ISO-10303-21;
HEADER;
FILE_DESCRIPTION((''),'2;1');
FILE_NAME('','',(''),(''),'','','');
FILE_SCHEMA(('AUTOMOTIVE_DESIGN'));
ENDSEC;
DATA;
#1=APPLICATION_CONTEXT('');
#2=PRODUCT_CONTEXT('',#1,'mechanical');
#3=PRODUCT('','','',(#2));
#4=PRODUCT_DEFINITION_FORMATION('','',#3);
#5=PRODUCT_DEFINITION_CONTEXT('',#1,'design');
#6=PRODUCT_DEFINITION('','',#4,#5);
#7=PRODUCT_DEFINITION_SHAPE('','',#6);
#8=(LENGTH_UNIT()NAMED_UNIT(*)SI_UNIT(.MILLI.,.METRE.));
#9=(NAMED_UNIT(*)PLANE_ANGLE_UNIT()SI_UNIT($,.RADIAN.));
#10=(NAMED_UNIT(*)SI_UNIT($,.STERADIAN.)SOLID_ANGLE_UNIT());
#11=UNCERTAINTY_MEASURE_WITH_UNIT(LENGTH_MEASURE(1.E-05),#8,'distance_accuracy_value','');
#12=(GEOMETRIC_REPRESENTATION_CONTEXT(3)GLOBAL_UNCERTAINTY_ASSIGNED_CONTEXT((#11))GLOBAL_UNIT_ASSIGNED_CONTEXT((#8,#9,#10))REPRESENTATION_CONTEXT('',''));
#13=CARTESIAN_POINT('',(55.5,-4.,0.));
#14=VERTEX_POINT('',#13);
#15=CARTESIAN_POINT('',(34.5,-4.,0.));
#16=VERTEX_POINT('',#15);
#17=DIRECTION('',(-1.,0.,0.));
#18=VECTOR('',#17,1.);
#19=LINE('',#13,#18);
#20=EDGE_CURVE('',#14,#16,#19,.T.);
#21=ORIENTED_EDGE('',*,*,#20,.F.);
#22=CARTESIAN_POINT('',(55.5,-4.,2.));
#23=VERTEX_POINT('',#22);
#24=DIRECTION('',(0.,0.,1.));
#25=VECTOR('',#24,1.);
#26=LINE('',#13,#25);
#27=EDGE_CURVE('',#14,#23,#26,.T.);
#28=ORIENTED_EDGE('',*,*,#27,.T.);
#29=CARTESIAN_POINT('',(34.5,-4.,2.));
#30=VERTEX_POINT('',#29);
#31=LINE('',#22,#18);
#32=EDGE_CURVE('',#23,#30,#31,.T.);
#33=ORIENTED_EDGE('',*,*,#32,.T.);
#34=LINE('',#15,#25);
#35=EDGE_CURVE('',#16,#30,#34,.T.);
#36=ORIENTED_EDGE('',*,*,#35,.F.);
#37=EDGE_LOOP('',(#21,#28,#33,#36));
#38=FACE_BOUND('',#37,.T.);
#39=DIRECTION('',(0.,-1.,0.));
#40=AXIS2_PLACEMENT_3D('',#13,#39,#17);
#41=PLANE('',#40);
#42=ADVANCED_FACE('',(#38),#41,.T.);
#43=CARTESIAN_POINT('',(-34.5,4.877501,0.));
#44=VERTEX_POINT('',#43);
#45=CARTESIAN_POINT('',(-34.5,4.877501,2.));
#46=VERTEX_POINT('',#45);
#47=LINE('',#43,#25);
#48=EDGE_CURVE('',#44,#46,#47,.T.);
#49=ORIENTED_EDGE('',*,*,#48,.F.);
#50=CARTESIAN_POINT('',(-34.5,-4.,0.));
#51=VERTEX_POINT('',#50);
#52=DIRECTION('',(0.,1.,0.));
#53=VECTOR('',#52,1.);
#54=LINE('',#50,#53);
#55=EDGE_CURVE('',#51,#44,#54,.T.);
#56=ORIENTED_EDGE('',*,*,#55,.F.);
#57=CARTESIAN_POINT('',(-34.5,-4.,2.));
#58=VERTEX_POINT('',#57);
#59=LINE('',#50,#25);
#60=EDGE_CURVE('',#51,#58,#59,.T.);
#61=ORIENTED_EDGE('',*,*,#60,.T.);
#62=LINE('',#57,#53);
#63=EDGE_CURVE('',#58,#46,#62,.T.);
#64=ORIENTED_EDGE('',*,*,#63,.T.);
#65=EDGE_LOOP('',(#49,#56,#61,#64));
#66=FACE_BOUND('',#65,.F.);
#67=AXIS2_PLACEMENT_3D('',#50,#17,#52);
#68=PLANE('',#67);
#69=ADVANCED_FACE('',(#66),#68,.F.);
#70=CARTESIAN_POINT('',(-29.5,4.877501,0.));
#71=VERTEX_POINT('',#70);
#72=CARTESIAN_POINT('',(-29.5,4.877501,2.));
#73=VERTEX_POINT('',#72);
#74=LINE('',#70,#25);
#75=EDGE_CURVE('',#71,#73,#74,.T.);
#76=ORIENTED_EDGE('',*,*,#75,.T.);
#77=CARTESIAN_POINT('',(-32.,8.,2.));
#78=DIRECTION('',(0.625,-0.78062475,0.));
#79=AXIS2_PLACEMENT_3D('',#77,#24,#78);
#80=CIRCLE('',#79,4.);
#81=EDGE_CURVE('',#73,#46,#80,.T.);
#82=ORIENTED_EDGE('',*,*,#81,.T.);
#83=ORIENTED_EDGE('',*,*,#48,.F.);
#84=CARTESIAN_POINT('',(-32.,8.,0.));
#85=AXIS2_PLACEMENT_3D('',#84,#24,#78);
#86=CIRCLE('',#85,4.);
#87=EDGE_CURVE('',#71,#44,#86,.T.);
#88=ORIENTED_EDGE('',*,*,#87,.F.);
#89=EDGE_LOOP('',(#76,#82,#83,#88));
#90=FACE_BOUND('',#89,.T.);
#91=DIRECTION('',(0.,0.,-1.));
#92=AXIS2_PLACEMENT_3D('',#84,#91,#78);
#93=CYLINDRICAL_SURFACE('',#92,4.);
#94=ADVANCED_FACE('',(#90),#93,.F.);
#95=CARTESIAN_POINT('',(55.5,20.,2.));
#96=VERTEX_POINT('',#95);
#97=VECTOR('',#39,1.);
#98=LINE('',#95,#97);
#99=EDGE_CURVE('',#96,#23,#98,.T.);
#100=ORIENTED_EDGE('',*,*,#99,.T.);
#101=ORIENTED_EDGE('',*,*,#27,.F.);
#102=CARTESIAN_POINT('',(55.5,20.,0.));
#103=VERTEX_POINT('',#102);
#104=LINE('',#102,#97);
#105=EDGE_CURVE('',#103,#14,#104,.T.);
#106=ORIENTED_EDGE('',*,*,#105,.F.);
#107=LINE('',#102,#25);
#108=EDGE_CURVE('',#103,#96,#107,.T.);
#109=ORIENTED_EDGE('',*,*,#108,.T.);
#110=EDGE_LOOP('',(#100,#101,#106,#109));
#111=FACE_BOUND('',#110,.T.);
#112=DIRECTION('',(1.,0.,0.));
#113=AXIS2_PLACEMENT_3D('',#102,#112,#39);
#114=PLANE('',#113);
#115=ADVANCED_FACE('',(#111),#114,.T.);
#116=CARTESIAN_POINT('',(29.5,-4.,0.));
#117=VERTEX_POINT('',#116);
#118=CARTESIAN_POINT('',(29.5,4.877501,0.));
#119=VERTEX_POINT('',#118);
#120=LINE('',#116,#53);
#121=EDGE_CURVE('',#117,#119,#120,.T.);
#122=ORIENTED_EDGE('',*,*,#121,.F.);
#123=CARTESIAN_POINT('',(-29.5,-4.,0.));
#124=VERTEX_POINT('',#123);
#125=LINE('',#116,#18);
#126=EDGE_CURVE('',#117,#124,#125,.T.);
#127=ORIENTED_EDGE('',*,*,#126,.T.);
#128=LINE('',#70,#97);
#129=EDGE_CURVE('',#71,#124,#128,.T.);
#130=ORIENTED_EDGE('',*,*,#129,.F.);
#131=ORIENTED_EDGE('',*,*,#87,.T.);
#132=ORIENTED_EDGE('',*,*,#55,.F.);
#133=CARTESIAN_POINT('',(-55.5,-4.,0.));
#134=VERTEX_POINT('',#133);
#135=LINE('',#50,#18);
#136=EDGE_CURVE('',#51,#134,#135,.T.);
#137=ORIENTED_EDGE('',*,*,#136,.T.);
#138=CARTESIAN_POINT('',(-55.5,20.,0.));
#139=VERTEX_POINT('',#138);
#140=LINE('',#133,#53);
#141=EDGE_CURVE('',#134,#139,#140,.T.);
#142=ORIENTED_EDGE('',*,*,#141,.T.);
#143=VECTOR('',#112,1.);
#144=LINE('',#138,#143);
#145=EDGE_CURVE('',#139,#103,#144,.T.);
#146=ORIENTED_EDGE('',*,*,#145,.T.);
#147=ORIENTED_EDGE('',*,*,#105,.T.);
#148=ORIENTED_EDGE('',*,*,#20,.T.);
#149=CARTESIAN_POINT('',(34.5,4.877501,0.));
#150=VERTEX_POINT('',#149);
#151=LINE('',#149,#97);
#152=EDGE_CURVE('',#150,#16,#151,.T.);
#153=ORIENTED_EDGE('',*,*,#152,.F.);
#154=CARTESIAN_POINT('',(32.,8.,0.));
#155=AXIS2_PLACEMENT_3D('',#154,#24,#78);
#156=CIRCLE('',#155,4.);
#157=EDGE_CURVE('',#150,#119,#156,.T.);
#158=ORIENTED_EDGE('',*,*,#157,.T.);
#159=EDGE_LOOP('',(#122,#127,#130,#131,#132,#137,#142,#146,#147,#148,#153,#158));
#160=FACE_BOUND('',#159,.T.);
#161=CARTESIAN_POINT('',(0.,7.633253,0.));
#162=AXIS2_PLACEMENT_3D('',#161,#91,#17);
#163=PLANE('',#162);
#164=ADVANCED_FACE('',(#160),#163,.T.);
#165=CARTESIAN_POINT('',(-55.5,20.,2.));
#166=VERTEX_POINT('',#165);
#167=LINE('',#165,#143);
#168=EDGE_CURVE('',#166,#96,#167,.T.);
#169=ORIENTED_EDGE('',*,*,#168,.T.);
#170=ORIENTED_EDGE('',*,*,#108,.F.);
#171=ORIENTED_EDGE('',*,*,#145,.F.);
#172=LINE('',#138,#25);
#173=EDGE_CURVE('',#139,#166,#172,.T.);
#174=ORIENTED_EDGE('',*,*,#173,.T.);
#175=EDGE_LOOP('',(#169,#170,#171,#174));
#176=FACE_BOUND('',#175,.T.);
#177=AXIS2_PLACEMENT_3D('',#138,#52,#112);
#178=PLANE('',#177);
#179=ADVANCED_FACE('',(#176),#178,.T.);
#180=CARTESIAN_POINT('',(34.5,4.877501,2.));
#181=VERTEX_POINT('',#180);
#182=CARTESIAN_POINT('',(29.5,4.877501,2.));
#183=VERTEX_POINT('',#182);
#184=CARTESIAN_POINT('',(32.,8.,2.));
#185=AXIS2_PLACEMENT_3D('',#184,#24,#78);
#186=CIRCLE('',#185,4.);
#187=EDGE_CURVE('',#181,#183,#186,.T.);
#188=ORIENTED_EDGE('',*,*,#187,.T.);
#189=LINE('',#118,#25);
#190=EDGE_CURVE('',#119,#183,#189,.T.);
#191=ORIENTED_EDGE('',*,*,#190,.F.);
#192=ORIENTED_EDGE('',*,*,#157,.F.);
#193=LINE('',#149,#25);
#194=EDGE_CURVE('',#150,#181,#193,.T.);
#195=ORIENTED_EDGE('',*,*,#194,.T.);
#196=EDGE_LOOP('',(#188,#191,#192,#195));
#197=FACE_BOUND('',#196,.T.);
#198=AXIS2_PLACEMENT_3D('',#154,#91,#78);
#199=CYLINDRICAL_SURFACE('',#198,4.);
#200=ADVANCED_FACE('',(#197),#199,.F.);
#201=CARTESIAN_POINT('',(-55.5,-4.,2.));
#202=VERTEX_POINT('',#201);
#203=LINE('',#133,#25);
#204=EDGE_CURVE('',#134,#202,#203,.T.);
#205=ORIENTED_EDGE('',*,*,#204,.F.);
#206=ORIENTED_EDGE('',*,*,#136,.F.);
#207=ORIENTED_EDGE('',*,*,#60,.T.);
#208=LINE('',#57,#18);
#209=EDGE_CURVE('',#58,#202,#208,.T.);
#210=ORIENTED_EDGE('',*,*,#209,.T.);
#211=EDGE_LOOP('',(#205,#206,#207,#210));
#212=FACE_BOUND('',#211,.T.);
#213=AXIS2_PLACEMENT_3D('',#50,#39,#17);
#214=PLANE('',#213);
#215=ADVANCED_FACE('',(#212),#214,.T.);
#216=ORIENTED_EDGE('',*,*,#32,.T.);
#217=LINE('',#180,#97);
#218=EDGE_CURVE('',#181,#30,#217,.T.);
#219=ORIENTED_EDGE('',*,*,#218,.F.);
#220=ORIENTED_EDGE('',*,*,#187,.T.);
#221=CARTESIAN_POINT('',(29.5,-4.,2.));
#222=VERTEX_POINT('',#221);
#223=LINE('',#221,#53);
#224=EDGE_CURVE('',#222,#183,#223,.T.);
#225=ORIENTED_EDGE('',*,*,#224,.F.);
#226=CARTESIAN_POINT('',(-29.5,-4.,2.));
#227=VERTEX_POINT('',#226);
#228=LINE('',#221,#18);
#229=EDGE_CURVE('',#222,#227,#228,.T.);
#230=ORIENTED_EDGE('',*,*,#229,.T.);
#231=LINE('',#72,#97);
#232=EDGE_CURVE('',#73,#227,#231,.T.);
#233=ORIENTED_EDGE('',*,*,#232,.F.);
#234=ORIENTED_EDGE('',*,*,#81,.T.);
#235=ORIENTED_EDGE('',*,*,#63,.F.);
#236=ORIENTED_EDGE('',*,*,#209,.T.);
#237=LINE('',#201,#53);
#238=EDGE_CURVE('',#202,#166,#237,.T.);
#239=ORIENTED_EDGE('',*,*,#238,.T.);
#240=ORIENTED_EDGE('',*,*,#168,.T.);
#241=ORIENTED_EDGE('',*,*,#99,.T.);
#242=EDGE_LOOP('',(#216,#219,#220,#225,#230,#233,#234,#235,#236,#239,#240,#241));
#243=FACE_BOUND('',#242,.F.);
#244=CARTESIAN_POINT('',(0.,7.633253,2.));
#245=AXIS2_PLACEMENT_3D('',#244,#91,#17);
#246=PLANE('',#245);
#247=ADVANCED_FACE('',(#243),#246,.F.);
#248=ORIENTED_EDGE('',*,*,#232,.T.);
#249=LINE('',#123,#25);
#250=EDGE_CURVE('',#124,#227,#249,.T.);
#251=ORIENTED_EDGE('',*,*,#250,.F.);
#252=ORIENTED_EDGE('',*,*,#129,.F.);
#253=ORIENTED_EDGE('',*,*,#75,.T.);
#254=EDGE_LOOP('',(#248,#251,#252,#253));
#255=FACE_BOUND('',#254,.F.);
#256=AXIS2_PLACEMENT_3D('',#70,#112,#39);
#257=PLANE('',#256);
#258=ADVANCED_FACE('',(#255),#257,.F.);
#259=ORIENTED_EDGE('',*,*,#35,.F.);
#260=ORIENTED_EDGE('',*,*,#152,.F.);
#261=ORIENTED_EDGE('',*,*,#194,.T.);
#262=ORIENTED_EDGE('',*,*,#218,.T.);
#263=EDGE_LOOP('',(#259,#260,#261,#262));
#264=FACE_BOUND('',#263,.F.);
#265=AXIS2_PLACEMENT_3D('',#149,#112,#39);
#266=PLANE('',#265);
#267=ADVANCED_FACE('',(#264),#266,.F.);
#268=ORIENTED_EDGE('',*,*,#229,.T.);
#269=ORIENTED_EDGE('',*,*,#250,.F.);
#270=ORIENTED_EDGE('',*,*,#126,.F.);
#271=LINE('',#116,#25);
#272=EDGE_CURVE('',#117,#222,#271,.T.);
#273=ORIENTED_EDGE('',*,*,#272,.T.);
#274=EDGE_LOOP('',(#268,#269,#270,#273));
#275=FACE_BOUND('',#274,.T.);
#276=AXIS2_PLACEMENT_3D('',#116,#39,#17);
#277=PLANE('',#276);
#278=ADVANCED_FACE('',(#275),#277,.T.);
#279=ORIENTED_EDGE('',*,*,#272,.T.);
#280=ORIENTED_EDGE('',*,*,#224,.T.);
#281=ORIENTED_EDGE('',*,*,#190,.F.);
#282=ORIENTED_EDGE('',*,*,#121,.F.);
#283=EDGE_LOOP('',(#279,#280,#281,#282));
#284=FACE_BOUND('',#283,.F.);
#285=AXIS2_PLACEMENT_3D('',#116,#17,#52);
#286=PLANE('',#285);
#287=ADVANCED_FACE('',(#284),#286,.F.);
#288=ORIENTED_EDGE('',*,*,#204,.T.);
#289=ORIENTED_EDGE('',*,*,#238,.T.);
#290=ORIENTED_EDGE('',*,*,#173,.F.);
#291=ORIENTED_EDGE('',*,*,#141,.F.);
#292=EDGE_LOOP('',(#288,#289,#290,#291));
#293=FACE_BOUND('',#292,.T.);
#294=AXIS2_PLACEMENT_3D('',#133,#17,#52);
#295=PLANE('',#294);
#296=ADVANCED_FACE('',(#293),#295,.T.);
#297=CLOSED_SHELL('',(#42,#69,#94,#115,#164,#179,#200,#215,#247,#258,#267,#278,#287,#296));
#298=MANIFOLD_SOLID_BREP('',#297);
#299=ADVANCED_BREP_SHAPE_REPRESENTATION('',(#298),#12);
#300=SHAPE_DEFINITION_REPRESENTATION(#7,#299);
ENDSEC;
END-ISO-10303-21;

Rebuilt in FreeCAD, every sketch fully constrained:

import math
import FreeCAD as App
import Part
import Sketcher

doc = App.newDocument("Part")
params = doc.addObject("Spreadsheet::Sheet", "Params")
for row, (alias, value) in enumerate([
    ("sketch1_radius", "4 mm"),
    ("sketch1_width", "111 mm"),
    ("sketch1_width2", "21 mm"),
    ("sketch1_width3", "59 mm"),
    ("sketch1_height", "24 mm"),
    ("pad1_length", "2 mm"),
], start=1):
    params.set(f"A{row}", alias)
    params.set(f"B{row}", "=" + value)
    params.setAlias(f"B{row}", alias)

body = doc.addObject("PartDesign::Body", "Body")

sketch1 = body.newObject("Sketcher::SketchObject", "Sketch")
sketch1.AttachmentSupport = (doc.getObject("XY_Plane"), [""])
sketch1.MapMode = "FlatFace"
sketch1.addGeometry([
    Part.LineSegment(App.Vector(55.5, 20, 0), App.Vector(-55.5, 20, 0)),
    Part.LineSegment(App.Vector(-55.5, 20, 0), App.Vector(-55.5, -4, 0)),
    Part.LineSegment(App.Vector(-55.5, -4, 0), App.Vector(-34.5, -4, 0)),
    Part.LineSegment(App.Vector(-34.5, -4, 0), App.Vector(-34.5, 4.9, 0)),
    Part.ArcOfCircle(Part.Circle(App.Vector(-32, 8, 0), App.Vector(0, 0, 1), 4), math.radians(-51), math.radians(231)),
    Part.LineSegment(App.Vector(-29.5, 4.9, 0), App.Vector(-29.5, -4, 0)),
    Part.LineSegment(App.Vector(-29.5, -4, 0), App.Vector(29.5, -4, 0)),
    Part.LineSegment(App.Vector(29.5, -4, 0), App.Vector(29.5, 4.9, 0)),
    Part.ArcOfCircle(Part.Circle(App.Vector(32, 8, 0), App.Vector(0, 0, 1), 4), math.radians(-51), math.radians(231)),
    Part.LineSegment(App.Vector(34.5, 4.9, 0), App.Vector(34.5, -4, 0)),
    Part.LineSegment(App.Vector(34.5, -4, 0), App.Vector(55.5, -4, 0)),
    Part.LineSegment(App.Vector(55.5, -4, 0), App.Vector(55.5, 20, 0)),
], False)
sketch1.addConstraint([
    Sketcher.Constraint("Coincident", 0, 2, 1, 1),
    Sketcher.Constraint("Coincident", 1, 2, 2, 1),
    Sketcher.Constraint("Coincident", 2, 2, 3, 1),
    Sketcher.Constraint("Coincident", 3, 2, 4, 2),
    Sketcher.Constraint("Coincident", 4, 1, 5, 1),
    Sketcher.Constraint("Coincident", 5, 2, 6, 1),
    Sketcher.Constraint("Coincident", 6, 2, 7, 1),
    Sketcher.Constraint("Coincident", 7, 2, 8, 2),
    Sketcher.Constraint("Coincident", 8, 1, 9, 1),
    Sketcher.Constraint("Coincident", 9, 2, 10, 1),
    Sketcher.Constraint("Coincident", 10, 2, 11, 1),
    Sketcher.Constraint("Coincident", 11, 2, 0, 1),
    Sketcher.Constraint("Horizontal", 0),
    Sketcher.Constraint("Vertical", 1),
    Sketcher.Constraint("Horizontal", 2),
    Sketcher.Constraint("Vertical", 3),
    Sketcher.Constraint("Vertical", 5),
    Sketcher.Constraint("Horizontal", 6),
    Sketcher.Constraint("Vertical", 7),
    Sketcher.Constraint("Vertical", 9),
    Sketcher.Constraint("Horizontal", 10),
    Sketcher.Constraint("Vertical", 11),
    Sketcher.Constraint("Equal", 4, 8),
    Sketcher.Constraint("Symmetric", 4, 3, 8, 3, -2),
    Sketcher.Constraint("Symmetric", 2, 2, 9, 2, -2),
    Sketcher.Constraint("Horizontal", 3, 2, 4, 1),
    Sketcher.Constraint("Horizontal", 2, 2, 5, 2),
    Sketcher.Constraint("Horizontal", 4, 1, 7, 2),
    Sketcher.Constraint("Equal", 2, 10),
    Sketcher.Constraint("Radius", 4, 4.0),
    Sketcher.Constraint("DistanceX", 0, 2, 0, 1, 111.0),
    Sketcher.Constraint("DistanceX", 2, 1, 2, 2, 21.0),
    Sketcher.Constraint("DistanceX", 6, 1, 6, 2, 59.0),
    Sketcher.Constraint("DistanceY", 1, 2, 1, 1, 24.0),
    Sketcher.Constraint("DistanceY", -1, 1, 4, 3, 8.0),
    Sketcher.Constraint("DistanceY", -1, 1, 0, 2, 20.0),
])
sketch1.setExpression("Constraints[29]", "Params.sketch1_radius")
sketch1.setExpression("Constraints[30]", "Params.sketch1_width")
sketch1.setExpression("Constraints[31]", "Params.sketch1_width2")
sketch1.setExpression("Constraints[32]", "Params.sketch1_width3")
sketch1.setExpression("Constraints[33]", "Params.sketch1_height")
pad1 = body.newObject("PartDesign::Pad", "Pad")
pad1.Profile = sketch1
pad1.setExpression("Length", "Params.pad1_length")

doc.recompute()
